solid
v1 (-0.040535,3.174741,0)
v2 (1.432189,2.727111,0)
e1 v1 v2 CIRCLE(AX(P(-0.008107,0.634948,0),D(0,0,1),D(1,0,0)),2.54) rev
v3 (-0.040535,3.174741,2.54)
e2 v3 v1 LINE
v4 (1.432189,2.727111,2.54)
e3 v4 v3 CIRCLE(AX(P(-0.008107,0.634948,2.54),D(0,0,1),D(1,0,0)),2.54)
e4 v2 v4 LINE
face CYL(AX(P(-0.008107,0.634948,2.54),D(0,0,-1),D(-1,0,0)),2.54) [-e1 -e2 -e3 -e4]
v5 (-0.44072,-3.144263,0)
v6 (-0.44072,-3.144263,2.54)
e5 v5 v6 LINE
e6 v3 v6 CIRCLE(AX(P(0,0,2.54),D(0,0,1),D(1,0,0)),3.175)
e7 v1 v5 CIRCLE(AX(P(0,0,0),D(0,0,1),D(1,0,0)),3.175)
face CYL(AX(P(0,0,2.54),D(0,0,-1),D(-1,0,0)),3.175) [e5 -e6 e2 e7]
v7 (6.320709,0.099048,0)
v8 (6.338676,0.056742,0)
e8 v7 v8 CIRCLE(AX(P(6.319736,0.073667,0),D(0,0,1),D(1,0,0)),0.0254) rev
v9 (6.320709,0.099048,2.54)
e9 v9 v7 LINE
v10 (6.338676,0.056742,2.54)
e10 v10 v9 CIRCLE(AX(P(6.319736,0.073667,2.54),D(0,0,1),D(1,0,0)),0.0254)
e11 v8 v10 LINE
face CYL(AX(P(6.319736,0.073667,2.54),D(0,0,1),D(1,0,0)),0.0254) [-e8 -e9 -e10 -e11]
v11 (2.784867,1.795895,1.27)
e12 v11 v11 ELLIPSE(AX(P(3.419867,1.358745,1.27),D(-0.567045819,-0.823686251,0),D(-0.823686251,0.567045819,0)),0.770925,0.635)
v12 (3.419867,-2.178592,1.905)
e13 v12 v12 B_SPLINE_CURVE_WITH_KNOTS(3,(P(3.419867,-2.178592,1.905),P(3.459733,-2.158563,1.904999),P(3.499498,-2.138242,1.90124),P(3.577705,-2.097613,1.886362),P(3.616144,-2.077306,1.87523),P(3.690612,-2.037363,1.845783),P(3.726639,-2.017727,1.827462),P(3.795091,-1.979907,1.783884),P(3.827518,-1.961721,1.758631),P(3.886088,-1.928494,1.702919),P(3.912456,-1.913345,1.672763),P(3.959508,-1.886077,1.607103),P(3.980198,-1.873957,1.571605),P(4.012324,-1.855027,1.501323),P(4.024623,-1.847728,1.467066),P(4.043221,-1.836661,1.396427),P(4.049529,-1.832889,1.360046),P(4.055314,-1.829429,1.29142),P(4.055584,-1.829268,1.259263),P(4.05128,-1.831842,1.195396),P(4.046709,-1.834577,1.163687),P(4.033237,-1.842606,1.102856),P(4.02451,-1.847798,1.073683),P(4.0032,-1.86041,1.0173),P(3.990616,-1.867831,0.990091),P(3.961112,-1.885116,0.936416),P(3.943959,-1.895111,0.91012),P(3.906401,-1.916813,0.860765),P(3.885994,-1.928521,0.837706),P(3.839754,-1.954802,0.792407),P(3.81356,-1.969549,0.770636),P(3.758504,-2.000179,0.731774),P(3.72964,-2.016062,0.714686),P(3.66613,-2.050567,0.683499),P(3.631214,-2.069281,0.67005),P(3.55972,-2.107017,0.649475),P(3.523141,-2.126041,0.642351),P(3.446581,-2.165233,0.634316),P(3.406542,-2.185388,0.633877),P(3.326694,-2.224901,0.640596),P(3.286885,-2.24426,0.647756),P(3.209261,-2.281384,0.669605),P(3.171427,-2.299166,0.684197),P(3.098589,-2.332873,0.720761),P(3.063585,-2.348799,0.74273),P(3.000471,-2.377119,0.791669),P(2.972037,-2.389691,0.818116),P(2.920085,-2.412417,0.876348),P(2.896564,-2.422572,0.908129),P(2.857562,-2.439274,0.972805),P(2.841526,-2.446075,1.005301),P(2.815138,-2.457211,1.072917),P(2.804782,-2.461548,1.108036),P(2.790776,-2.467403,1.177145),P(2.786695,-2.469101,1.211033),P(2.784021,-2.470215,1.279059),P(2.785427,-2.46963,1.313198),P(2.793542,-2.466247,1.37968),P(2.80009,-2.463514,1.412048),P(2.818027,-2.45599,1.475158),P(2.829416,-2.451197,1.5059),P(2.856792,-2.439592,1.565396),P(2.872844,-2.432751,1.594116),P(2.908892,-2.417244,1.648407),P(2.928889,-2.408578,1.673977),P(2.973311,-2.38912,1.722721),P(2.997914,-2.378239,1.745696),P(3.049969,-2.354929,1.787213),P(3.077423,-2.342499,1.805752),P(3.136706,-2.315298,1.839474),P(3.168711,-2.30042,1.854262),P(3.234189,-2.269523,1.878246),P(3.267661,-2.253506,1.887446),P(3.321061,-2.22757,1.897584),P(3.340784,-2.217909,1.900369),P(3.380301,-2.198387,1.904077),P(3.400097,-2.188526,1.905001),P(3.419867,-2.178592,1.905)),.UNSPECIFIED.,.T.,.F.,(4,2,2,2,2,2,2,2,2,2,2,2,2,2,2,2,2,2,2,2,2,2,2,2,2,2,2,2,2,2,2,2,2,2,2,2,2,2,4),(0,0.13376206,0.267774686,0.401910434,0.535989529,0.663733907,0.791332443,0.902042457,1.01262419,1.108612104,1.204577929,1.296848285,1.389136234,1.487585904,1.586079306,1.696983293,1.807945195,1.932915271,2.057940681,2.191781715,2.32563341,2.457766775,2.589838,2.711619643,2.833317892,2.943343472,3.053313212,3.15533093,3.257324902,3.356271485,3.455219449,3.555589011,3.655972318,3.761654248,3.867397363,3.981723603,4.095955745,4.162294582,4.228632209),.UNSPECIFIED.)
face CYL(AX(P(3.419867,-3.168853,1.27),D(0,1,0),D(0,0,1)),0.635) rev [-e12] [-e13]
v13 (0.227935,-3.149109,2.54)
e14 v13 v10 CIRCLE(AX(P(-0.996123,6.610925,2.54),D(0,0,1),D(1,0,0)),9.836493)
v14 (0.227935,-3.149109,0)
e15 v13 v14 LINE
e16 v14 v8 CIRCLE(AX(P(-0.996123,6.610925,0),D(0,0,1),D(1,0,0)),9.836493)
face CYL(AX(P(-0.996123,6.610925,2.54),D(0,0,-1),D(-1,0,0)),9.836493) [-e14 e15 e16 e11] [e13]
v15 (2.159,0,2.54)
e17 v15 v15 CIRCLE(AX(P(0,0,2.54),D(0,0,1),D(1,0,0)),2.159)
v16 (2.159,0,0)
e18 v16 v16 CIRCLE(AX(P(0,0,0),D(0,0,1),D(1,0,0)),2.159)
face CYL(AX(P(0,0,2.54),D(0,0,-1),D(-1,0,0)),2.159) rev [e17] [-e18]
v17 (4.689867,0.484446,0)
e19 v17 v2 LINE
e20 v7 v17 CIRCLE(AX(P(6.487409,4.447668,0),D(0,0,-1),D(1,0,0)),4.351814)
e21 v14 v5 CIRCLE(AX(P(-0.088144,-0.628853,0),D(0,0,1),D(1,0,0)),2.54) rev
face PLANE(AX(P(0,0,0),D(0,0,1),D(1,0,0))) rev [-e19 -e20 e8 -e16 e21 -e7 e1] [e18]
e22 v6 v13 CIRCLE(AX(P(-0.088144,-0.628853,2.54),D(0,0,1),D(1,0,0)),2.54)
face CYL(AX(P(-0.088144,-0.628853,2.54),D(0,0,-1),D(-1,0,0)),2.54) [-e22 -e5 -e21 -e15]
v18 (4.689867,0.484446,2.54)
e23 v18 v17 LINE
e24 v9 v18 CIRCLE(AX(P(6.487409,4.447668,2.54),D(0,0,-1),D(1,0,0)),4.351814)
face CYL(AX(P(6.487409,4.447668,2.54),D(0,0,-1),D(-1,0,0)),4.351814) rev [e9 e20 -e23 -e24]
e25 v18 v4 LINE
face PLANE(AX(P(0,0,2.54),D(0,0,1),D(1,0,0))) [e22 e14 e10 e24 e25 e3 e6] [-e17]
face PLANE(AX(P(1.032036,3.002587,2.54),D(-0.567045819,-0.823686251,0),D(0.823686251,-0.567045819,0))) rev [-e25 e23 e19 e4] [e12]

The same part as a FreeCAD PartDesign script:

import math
import FreeCAD as App
import Part
import Sketcher

V = App.Vector
Q = App.Units.Quantity


def edges_at(feature, points):
    """Names of the edges that pass closest to the given points."""
    edges = feature.Shape.Edges
    near = lambda p: min(range(len(edges)), key=lambda i: edges[i].distToShape(Part.Vertex(*p))[0])
    return sorted({f"Edge{near(p) + 1}" for p in points})

doc = App.newDocument("Part")
body = doc.addObject("PartDesign::Body", "Body")

sketch1 = body.newObject("Sketcher::SketchObject", "Sketch")
sketch1.AttachmentSupport = (doc.getObject("XY_Plane"), [""])
sketch1.MapMode = "FlatFace"
sketch1.addGeometry([
    Part.LineSegment(V(4.7, 0.5, 0), V(1, 3, 0)),
    Part.ArcOfCircle(Part.Circle(V(0, 0, 0), V(0, 0, 1), 3.2), math.radians(71), math.radians(270)),
    Part.ArcOfCircle(Part.Circle(V(-1, 6.6, 0), V(0, 0, 1), 9.8), math.radians(-84), math.radians(-41)),
    Part.ArcOfCircle(Part.Circle(V(6.5, 4.4, 0), V(0, 0, 1), 4.4), math.radians(-114), math.radians(-91)),
    Part.Circle(V(0, 0, 0), V(0, 0, 1), 2.2),
], False)
sketch1.addConstraint([
    Sketcher.Constraint("Coincident", 0, 2, 1, 1),
    Sketcher.Constraint("Coincident", 1, 2, 2, 1),
    Sketcher.Constraint("Coincident", 2, 2, 3, 2),
    Sketcher.Constraint("Coincident", 3, 1, 0, 1),
    Sketcher.Constraint("Coincident", 1, 3, -1, 1),
    Sketcher.Constraint("Coincident", 4, 3, -1, 1),
    Sketcher.Constraint("PointOnObject", 1, 2, -2),
    Sketcher.Constraint("Diameter", 4, Q("0.17 in")),
    Sketcher.Constraint("Radius", 1, Q("0.125 in")),
    Sketcher.Constraint("Radius", 2, Q("9.836493 mm")),
    Sketcher.Constraint("Radius", 3, Q("4.351814 mm")),
    Sketcher.Constraint("DistanceX", -1, 1, 3, 3, Q("6.487409 mm")),
    Sketcher.Constraint("DistanceX", -1, 1, 2, 2, Q("6.374728 mm")),
    Sketcher.Constraint("DistanceX", 2, 3, 3, 3, Q("7.483532 mm")),
    Sketcher.Constraint("DistanceX", 2, 3, 0, 2, Q("2.028159 mm")),
    Sketcher.Constraint("DistanceX", 3, 1, 2, 2, Q("1.684861 mm")),
])
pad1 = body.newObject("PartDesign::Pad", "Pad")
pad1.Profile = sketch1
pad1.Length = Q("0.1 in")
doc.recompute()

fillet = body.newObject("PartDesign::Fillet", "Fillet")
fillet.Base = (pad1, edges_at(pad1, [(1.032, 3.003, 1.27), (0, -3.175, 1.27)]))
fillet.Radius = Q("0.1 in")
doc.recompute()

fillet2 = body.newObject("PartDesign::Fillet", "Fillet001")
fillet2.Base = (fillet, edges_at(fillet, [(6.375, 0.097, 1.27)]))
fillet2.Radius = Q("0.001 in")

sketch2 = body.newObject("Sketcher::SketchObject", "Sketch001")
sketch2.AttachmentSupport = (doc.getObject("XZ_Plane"), [""])
sketch2.MapMode = "FlatFace"
sketch2.addGeometry(Part.Circle(V(3.4, 1.3, 0), V(0, 0, 1), 0.6), False)
sketch2.addConstraint([
    Sketcher.Constraint("Diameter", 0, Q("0.05 in")),
    Sketcher.Constraint("DistanceY", -1, 1, 0, 3, Q("0.05 in")),
    Sketcher.Constraint("DistanceX", -1, 1, 0, 3, Q("3.419867 mm")),
])
pocket1 = body.newObject("PartDesign::Pocket", "Pocket")
pocket1.Profile = sketch2
pocket1.Type = "ThroughAll"
pocket1.Midplane = True

doc.recompute()
